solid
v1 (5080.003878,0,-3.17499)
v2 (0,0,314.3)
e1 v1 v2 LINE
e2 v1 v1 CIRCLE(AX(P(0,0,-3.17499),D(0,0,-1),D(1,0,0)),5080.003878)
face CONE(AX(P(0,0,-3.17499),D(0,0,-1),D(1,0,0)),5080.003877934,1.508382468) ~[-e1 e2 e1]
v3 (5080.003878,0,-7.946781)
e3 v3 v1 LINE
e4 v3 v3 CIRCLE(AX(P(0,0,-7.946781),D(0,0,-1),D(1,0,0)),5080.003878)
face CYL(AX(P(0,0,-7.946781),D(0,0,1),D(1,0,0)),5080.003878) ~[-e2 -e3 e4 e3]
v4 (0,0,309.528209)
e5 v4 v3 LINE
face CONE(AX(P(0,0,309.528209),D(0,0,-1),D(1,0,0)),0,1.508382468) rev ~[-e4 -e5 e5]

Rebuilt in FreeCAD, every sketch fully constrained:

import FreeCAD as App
import Part
import Sketcher

doc = App.newDocument("Part")
params = doc.addObject("Spreadsheet::Sheet", "Params")
for row, (alias, value) in enumerate([
    ("revolution_angle", "360 deg"),
], start=1):
    params.set(f"A{row}", alias)
    params.set(f"B{row}", "=" + value)
    params.setAlias(f"B{row}", alias)

body = doc.addObject("PartDesign::Body", "Body")

# Sketch on XZ plane
sketch1 = doc.addObject("Sketcher::SketchObject", "Sketch")
body.addObject(sketch1)
sketch1.AttachmentSupport = (doc.XZ_Plane, [""])
sketch1.MapMode = "FlatFace"
sketch1.addGeometry([
    Part.LineSegment(App.Vector(0, 309.5, 0), App.Vector(5080, -7.9, 0)),
    Part.LineSegment(App.Vector(5080, -7.9, 0), App.Vector(5080, -3.2, 0)),
    Part.LineSegment(App.Vector(5080, -3.2, 0), App.Vector(0, 314.3, 0)),
    Part.LineSegment(App.Vector(0, 314.3, 0), App.Vector(0, 309.5, 0)),
], False)
sketch1.addConstraint([
    Sketcher.Constraint("Coincident", 0, 2, 1, 1),
    Sketcher.Constraint("Coincident", 1, 2, 2, 1),
    Sketcher.Constraint("Coincident", 2, 2, 3, 1),
    Sketcher.Constraint("Coincident", 3, 2, 0, 1),
    Sketcher.Constraint("Vertical", 1),
    Sketcher.Constraint("Vertical", 3),
    Sketcher.Constraint("PointOnObject", 2, 2, -2),
    Sketcher.Constraint("Parallel", 0, 2),
    Sketcher.Constraint("DistanceY", -1, 1, 2, 2, 314.3),
    Sketcher.Constraint("DistanceY", 1, 1, 1, 2, 4.771791),
    Sketcher.Constraint("DistanceY", 1, 2, 3, 2, 312.703199),
    Sketcher.Constraint("Distance", 0, 5089.914515),
])
revolution = doc.addObject("PartDesign::Revolution", "Revolution")
body.addObject(revolution)
revolution.Profile = sketch1
revolution.ReferenceAxis = (sketch1, ["V_Axis"])
revolution.setExpression("Angle", "Params.revolution_angle")

doc.recompute()
